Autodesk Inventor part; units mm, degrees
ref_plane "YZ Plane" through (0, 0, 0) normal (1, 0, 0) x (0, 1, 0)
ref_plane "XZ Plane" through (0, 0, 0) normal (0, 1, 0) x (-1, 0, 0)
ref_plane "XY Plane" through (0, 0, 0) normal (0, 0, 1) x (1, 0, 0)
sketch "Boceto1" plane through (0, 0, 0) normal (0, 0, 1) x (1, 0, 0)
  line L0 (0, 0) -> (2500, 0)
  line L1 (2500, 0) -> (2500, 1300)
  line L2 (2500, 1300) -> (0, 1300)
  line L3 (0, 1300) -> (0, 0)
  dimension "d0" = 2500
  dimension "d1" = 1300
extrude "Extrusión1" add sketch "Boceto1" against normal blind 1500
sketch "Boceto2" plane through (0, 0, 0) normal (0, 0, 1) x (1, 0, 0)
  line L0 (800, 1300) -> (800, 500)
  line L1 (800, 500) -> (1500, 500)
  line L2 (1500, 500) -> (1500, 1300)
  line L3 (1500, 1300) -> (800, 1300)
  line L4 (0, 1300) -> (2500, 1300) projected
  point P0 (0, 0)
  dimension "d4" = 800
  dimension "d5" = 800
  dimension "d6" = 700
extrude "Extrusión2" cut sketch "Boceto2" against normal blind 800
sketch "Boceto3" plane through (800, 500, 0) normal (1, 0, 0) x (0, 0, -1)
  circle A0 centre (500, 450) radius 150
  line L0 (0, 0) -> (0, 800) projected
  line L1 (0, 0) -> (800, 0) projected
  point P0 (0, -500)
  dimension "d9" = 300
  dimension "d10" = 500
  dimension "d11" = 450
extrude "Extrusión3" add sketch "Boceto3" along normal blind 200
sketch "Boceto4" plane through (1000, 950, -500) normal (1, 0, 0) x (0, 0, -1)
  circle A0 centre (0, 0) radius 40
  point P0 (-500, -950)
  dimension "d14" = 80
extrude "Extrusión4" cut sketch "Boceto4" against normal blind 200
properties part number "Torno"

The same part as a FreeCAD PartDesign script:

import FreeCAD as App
import Part
import Sketcher

V = App.Vector


def add_polygon(sketch, points):
    """Adds a closed chain of lines whose ends are joined by coincident constraints."""
    first, n = sketch.GeometryCount, len(points)
    for a, b in zip(points, points[1:] + points[:1]):
        sketch.addGeometry(Part.LineSegment(App.Vector(*a, 0), App.Vector(*b, 0)), False)
    for i in range(n):
        sketch.addConstraint(Sketcher.Constraint("Coincident", first + i, 2, first + (i + 1) % n, 1))

doc = App.newDocument("Part")
body = doc.addObject("PartDesign::Body", "Body")

# Sketch on XY plane
sketch1 = doc.addObject("Sketcher::SketchObject", "Sketch")
body.addObject(sketch1)
sketch1.AttachmentSupport = (doc.XY_Plane, [""])
sketch1.MapMode = "FlatFace"
add_polygon(sketch1, [(0, 1300), (0, 0), (2500, 0), (2500, 1300)])  # lines 0-3
sketch1.addConstraint([
    Sketcher.Constraint("Vertical", 0),
    Sketcher.Constraint("Horizontal", 1),
    Sketcher.Constraint("Vertical", 2),
    Sketcher.Constraint("Horizontal", 3),
    Sketcher.Constraint("Coincident", 0, 2, -1, 1),
    Sketcher.Constraint("DistanceX", 1, 1, 1, 2, 2500.0),
    Sketcher.Constraint("DistanceY", 0, 2, 0, 1, 1300.0),
])
pad1 = doc.addObject("PartDesign::Pad", "Pad")
body.addObject(pad1)
pad1.Profile = sketch1
pad1.Length = 1500
pad1.Reversed = True

# Sketch on XY plane
sketch2 = doc.addObject("Sketcher::SketchObject", "Sketch001")
body.addObject(sketch2)
sketch2.AttachmentSupport = (doc.XY_Plane, [""])
sketch2.MapMode = "FlatFace"
add_polygon(sketch2, [(1500, 1300), (800, 1300), (800, 500), (1500, 500)])  # lines 0-3
sketch2.addConstraint([
    Sketcher.Constraint("Horizontal", 0),
    Sketcher.Constraint("Vertical", 1),
    Sketcher.Constraint("Horizontal", 2),
    Sketcher.Constraint("Vertical", 3),
    Sketcher.Constraint("DistanceX", 0, 2, 0, 1, 700.0),
    Sketcher.Constraint("DistanceY", 1, 2, 1, 1, 800.0),
    Sketcher.Constraint("DistanceX", -1, 1, 0, 2, 800.0),
    Sketcher.Constraint("DistanceY", -1, 1, 0, 2, 1300.0),
])
pocket1 = doc.addObject("PartDesign::Pocket", "Pocket")
body.addObject(pocket1)
pocket1.Profile = sketch2
pocket1.Length = 800

# Sketch on YZ plane
sketch3 = doc.addObject("Sketcher::SketchObject", "Sketch002")
body.addObject(sketch3)
sketch3.AttachmentSupport = (doc.YZ_Plane, [""])
sketch3.MapMode = "FlatFace"
sketch3.AttachmentOffset = App.Placement(V(0, 0, 800), App.Rotation())
sketch3.addGeometry(Part.Circle(V(950, -500, 0), V(0, 0, 1), 150), False)
sketch3.addConstraint([
    Sketcher.Constraint("Diameter", 0, 300.0),
    Sketcher.Constraint("DistanceY", 0, 3, -1, 1, 500.0),
    Sketcher.Constraint("DistanceX", -1, 1, 0, 3, 950.0),
])
pad2 = doc.addObject("PartDesign::Pad", "Pad001")
body.addObject(pad2)
pad2.Profile = sketch3
pad2.Length = 200

# Sketch on YZ plane
sketch4 = doc.addObject("Sketcher::SketchObject", "Sketch003")
body.addObject(sketch4)
sketch4.AttachmentSupport = (doc.YZ_Plane, [""])
sketch4.MapMode = "FlatFace"
sketch4.AttachmentOffset = App.Placement(V(0, 0, 1000), App.Rotation())
sketch4.addGeometry(Part.Circle(V(950, -500, 0), V(0, 0, 1), 40), False)
sketch4.addConstraint([
    Sketcher.Constraint("Diameter", 0, 80.0),
    Sketcher.Constraint("DistanceX", -1, 1, 0, 3, 950.0),
    Sketcher.Constraint("DistanceY", 0, 3, -1, 1, 500.0),
])
pocket2 = doc.addObject("PartDesign::Pocket", "Pocket001")
body.addObject(pocket2)
pocket2.Profile = sketch4
pocket2.Length = 200

doc.recompute()
